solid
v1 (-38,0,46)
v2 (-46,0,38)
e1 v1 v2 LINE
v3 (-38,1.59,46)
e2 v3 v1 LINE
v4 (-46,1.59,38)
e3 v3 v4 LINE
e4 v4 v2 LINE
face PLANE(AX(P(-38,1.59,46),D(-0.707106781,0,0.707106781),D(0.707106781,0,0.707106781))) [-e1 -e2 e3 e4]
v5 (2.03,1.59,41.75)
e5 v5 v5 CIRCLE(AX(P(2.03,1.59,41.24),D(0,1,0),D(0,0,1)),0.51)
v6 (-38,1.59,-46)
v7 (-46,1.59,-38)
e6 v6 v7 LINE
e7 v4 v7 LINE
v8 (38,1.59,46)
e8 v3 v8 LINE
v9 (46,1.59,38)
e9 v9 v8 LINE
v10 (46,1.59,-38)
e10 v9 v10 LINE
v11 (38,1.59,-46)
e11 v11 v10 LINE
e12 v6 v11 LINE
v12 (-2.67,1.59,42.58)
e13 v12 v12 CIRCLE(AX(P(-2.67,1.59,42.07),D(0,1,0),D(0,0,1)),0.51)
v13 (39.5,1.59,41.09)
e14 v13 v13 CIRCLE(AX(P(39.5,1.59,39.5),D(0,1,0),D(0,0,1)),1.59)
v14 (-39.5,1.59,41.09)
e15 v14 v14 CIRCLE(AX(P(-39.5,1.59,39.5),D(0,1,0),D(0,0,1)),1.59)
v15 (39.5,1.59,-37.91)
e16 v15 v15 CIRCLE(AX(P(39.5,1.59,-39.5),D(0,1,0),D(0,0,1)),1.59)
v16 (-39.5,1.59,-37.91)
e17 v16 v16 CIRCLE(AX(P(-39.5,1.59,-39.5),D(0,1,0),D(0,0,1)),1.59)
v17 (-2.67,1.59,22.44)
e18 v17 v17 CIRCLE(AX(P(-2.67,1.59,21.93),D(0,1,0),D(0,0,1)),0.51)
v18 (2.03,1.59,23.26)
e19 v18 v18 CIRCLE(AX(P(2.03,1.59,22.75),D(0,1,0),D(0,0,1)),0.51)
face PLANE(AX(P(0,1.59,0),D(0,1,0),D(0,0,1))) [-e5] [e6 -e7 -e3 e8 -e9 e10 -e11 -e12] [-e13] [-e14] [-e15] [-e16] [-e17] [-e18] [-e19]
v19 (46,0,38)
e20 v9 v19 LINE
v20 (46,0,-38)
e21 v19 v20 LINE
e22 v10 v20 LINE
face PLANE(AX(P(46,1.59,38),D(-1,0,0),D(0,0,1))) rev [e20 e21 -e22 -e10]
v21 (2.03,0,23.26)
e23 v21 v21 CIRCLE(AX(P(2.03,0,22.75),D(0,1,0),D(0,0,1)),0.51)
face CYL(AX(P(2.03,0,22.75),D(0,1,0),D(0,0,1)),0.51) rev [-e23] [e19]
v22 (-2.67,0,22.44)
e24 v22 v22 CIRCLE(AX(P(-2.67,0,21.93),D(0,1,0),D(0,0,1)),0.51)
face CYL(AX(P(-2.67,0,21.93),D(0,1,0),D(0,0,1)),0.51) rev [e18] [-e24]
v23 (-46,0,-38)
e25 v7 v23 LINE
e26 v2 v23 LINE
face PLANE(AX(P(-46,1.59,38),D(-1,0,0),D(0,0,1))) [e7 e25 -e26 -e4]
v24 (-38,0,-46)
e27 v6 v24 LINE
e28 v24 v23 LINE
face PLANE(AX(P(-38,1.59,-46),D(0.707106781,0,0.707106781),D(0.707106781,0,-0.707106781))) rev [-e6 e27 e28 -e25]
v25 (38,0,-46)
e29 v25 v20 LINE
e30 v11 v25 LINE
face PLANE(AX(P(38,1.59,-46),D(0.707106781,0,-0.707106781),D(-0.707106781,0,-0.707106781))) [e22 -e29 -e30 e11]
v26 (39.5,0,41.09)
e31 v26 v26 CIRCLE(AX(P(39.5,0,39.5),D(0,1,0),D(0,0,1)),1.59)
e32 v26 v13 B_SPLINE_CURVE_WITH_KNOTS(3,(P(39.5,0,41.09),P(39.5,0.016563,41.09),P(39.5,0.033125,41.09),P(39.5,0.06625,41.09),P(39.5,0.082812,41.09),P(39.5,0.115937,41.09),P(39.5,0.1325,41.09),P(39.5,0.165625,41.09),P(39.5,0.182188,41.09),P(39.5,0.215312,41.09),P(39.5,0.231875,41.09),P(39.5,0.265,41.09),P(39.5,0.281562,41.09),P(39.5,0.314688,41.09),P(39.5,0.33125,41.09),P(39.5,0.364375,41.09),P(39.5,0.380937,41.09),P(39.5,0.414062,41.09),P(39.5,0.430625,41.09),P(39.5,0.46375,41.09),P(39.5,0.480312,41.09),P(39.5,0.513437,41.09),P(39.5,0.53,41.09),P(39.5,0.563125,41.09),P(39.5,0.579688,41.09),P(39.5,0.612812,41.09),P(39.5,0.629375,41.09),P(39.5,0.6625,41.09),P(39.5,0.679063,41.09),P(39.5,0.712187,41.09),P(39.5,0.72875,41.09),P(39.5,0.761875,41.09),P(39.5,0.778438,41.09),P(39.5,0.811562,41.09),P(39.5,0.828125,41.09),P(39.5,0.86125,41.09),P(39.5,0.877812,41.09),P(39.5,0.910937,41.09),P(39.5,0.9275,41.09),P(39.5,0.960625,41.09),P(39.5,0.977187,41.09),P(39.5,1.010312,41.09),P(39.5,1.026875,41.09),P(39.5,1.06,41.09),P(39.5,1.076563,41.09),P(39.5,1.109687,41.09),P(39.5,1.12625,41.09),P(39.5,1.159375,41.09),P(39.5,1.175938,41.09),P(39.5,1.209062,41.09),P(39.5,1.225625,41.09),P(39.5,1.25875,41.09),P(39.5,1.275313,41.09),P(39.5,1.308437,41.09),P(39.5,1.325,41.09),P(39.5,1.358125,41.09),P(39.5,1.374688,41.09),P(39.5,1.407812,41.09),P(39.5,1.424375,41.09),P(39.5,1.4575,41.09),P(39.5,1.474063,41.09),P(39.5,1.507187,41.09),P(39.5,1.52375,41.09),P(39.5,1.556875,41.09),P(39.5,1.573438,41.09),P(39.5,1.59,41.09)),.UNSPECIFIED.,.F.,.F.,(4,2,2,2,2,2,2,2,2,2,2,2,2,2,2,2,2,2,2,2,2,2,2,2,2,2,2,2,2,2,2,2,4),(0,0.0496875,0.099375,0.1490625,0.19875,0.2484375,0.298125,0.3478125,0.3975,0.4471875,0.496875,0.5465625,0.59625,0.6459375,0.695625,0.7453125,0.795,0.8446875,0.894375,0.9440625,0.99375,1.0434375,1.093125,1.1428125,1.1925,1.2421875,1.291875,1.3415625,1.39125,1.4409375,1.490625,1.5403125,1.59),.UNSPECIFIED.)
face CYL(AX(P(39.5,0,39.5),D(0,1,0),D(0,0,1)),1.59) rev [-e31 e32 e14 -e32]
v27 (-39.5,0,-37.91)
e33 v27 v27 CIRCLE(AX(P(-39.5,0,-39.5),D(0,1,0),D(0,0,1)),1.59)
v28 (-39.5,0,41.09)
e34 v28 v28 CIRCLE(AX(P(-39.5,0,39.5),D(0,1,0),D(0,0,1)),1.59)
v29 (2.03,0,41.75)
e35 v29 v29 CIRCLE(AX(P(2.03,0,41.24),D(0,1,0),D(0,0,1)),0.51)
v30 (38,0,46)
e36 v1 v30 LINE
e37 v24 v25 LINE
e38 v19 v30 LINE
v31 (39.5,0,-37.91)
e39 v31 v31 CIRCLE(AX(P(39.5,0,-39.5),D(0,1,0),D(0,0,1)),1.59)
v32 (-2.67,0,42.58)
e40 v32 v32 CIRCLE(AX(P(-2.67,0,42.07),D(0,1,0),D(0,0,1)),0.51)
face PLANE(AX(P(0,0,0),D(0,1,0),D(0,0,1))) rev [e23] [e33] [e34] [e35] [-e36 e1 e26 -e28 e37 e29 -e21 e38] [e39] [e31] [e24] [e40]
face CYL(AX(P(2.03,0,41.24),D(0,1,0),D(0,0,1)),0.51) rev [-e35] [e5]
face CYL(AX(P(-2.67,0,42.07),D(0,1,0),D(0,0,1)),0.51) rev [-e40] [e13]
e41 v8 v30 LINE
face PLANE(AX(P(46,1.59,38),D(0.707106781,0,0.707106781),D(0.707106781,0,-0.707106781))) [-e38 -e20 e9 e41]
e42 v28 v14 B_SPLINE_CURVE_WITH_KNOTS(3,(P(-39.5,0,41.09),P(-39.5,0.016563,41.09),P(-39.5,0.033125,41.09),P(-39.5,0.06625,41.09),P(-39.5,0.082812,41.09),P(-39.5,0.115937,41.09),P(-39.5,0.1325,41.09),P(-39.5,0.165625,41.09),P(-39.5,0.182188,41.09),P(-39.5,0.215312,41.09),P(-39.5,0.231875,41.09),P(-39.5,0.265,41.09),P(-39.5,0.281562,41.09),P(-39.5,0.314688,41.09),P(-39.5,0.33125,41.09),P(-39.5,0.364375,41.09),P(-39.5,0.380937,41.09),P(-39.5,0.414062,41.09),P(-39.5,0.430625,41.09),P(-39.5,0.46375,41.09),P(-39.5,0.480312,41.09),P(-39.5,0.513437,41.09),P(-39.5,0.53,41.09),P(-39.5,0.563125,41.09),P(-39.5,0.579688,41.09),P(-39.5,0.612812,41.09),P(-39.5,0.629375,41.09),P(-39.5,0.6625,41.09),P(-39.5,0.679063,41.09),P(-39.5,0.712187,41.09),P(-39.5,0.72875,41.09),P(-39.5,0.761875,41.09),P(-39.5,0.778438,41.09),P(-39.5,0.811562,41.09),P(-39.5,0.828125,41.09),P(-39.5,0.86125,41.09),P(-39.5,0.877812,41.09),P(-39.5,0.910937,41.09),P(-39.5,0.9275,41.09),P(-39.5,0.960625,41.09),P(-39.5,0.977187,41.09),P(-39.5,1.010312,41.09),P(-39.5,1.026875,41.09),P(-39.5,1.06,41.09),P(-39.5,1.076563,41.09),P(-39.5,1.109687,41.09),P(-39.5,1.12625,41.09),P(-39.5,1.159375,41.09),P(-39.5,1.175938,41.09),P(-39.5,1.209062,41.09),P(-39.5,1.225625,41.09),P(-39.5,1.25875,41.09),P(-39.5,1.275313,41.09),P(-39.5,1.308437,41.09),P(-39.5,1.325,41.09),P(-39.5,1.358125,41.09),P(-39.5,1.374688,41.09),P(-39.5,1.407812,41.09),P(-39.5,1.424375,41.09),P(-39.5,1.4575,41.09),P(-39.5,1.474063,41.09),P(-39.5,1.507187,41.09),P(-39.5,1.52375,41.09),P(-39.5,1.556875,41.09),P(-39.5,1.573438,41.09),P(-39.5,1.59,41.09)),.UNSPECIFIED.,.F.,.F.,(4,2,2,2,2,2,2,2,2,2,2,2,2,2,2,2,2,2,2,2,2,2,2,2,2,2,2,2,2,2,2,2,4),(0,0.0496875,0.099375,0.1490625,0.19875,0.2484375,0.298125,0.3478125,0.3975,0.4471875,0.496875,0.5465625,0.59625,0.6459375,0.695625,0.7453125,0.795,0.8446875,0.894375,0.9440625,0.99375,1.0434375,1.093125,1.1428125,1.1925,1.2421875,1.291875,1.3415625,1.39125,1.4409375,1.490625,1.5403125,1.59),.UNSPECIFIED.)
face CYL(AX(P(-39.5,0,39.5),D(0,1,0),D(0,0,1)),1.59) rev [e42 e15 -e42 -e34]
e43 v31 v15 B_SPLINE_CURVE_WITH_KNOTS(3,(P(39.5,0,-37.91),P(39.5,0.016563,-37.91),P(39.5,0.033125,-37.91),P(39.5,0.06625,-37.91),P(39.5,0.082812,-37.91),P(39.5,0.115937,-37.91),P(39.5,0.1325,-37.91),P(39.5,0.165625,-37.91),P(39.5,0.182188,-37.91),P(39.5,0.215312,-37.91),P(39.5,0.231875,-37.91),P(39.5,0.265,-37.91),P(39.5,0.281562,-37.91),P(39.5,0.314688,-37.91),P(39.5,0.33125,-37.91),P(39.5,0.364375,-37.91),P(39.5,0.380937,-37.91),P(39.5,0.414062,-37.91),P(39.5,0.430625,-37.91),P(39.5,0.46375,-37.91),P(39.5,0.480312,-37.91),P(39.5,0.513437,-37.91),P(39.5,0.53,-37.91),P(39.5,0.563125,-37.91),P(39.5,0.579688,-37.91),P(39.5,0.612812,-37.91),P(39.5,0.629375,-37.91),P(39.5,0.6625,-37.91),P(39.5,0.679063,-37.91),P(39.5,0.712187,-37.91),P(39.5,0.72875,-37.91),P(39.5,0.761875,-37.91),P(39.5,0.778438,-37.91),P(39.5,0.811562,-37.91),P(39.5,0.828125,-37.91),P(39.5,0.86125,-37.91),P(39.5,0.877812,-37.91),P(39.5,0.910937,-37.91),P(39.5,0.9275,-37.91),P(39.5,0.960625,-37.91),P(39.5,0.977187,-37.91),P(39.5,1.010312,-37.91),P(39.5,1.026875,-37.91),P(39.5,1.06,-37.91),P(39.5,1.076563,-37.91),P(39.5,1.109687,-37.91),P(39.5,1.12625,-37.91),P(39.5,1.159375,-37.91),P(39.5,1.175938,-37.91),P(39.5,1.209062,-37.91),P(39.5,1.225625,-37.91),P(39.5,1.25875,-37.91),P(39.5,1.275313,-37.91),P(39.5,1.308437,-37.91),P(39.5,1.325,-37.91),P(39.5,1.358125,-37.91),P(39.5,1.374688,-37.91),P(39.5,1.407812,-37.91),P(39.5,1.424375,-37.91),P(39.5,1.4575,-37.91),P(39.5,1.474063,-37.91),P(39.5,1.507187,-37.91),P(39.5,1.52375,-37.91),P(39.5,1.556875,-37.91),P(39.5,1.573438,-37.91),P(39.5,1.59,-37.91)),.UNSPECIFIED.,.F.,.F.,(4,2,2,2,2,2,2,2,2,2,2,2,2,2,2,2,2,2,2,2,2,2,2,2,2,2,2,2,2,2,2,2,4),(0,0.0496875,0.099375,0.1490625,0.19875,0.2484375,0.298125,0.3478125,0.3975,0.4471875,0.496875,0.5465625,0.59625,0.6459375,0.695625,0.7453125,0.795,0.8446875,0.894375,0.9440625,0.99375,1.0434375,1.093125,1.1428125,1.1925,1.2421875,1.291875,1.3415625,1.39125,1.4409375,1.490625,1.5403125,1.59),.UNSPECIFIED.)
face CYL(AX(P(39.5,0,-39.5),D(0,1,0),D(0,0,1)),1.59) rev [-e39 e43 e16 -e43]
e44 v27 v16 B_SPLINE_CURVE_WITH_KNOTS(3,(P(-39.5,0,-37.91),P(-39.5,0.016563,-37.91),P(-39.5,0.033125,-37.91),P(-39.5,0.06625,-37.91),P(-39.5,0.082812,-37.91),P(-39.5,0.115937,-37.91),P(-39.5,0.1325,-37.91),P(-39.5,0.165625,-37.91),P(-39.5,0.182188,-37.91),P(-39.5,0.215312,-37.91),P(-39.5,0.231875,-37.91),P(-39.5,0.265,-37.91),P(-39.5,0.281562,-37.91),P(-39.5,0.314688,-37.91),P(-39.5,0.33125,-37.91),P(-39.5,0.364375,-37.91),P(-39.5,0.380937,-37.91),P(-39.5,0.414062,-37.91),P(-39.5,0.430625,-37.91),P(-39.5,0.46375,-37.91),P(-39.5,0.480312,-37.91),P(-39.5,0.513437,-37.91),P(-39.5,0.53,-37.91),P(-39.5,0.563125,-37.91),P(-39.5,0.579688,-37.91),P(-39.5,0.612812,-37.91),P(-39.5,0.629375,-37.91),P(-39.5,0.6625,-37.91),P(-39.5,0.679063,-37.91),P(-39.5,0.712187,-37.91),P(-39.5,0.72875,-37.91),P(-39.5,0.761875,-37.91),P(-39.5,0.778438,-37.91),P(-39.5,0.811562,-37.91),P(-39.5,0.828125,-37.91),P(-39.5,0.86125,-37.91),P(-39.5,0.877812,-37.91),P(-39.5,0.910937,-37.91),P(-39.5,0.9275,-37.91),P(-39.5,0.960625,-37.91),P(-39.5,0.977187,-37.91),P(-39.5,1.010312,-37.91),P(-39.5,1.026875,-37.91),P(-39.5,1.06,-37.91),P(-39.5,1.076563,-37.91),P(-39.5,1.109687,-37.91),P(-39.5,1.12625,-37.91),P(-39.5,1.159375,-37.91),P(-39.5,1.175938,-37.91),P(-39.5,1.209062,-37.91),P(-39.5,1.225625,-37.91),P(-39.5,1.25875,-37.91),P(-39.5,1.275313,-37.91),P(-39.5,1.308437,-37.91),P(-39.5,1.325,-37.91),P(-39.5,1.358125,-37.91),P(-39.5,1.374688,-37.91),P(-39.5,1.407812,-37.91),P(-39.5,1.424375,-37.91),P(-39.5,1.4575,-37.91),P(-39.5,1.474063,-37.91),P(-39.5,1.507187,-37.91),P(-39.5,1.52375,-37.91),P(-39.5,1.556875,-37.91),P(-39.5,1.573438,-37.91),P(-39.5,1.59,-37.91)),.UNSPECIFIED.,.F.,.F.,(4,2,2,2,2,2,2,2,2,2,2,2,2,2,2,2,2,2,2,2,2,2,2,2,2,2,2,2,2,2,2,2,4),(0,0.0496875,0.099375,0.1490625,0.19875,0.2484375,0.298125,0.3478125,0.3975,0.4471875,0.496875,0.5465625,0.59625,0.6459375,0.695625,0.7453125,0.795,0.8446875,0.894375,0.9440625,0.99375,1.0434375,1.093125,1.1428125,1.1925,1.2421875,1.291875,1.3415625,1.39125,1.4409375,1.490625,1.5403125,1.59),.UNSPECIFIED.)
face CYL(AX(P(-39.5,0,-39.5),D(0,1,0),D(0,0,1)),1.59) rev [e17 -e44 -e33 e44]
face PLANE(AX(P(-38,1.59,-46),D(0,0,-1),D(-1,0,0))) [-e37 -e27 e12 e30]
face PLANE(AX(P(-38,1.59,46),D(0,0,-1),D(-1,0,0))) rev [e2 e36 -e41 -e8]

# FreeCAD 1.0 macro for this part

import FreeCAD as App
import Part
import Sketcher
from FreeCAD import Vector
Q = App.Units.Quantity


def add_polygon(sketch, points):
    """Adds a closed chain of lines whose ends are joined by coincident constraints."""
    first, n = sketch.GeometryCount, len(points)
    for a, b in zip(points, points[1:] + points[:1]):
        sketch.addGeometry(Part.LineSegment(App.Vector(*a, 0), App.Vector(*b, 0)), False)
    for i in range(n):
        sketch.addConstraint(Sketcher.Constraint("Coincident", first + i, 2, first + (i + 1) % n, 1))

doc = App.newDocument("Part")
params = doc.addObject("Spreadsheet::Sheet", "Params")
for row, (alias, value) in enumerate([
    ("sketch1_width", "76 mm"),
    ("pad1_length", "1.59 mm"),
    ("sketch2_diameter", "3.18 mm"),
    ("sketch2_diameter2", "1.02 mm"),
], start=1):
    params.set(f"A{row}", alias)
    params.set(f"B{row}", "=" + value)
    params.setAlias(f"B{row}", alias)

body = doc.addObject("PartDesign::Body", "Body")

sketch1 = body.newObject("Sketcher::SketchObject", "Sketch")
sketch1.AttachmentSupport = (doc.getObject("XZ_Plane"), [""])
sketch1.MapMode = "FlatFace"
add_polygon(sketch1, [(-38, -46), (-46, -38), (-46, 38), (-38, 46), (38, 46), (46, 38), (46, -38), (38, -46)])
sketch1.addConstraint(Sketcher.Constraint("Vertical", 1))
sketch1.addConstraint(Sketcher.Constraint("Horizontal", 3))
sketch1.addConstraint(Sketcher.Constraint("Vertical", 5))
sketch1.addConstraint(Sketcher.Constraint("Horizontal", 7))
sketch1.addConstraint(Sketcher.Constraint("Symmetric", 0, 2, 4, 2, -1, 1))
sketch1.addConstraint(Sketcher.Constraint("Symmetric", 2, 2, 6, 2, -1, 1))
sketch1.addConstraint(Sketcher.Constraint("Perpendicular", 0, 2))
sketch1.addConstraint(Sketcher.Constraint("Perpendicular", 2, 4))
sketch1.addConstraint(Sketcher.Constraint("Perpendicular", 4, 6))
sketch1.addConstraint(Sketcher.Constraint("Horizontal", 1, 2, 4, 2))
sketch1.addConstraint(Sketcher.Constraint("Vertical", 3, 2, 6, 2))
sketch1.addConstraint(Sketcher.Constraint("Equal", 7, 1))
sketch1.addConstraint(Sketcher.Constraint("DistanceX", 3, 1, 3, 2, Q("76 mm")))
sketch1.addConstraint(Sketcher.Constraint("DistanceX", 0, 2, -1, 1, Q("46 mm")))
sketch1.setExpression("Constraints[20]", "Params.sketch1_width")
pad1 = body.newObject("PartDesign::Pad", "Pad")
pad1.Profile = sketch1
pad1.setExpression("Length", "Params.pad1_length")
pad1.Reversed = True

sketch2 = body.newObject("Sketcher::SketchObject", "Sketch001")
sketch2.AttachmentSupport = (doc.getObject("XZ_Plane"), [""])
sketch2.MapMode = "FlatFace"
sketch2.AttachmentOffset = App.Placement(Vector(0, 0, -1.59), App.Rotation())
sketch2.addGeometry(Part.Circle(Vector(-39.5, -39.5, 0), Vector(0, 0, 1), 1.59), False)
sketch2.addGeometry(Part.Circle(Vector(39.5, -39.5, 0), Vector(0, 0, 1), 1.59), False)
sketch2.addGeometry(Part.Circle(Vector(39.5, 39.5, 0), Vector(0, 0, 1), 1.59), False)
sketch2.addGeometry(Part.Circle(Vector(-39.5, 39.5, 0), Vector(0, 0, 1), 1.59), False)
sketch2.addGeometry(Part.Circle(Vector(-2.67, 21.93, 0), Vector(0, 0, 1), 0.51), False)
sketch2.addGeometry(Part.Circle(Vector(2.03, 22.75, 0), Vector(0, 0, 1), 0.51), False)
sketch2.addGeometry(Part.Circle(Vector(-2.67, 42.07, 0), Vector(0, 0, 1), 0.51), False)
sketch2.addGeometry(Part.Circle(Vector(2.03, 41.24, 0), Vector(0, 0, 1), 0.51), False)
sketch2.addConstraint(Sketcher.Constraint("Equal", 0, 1))
sketch2.addConstraint(Sketcher.Constraint("Equal", 1, 2))
sketch2.addConstraint(Sketcher.Constraint("Equal", 2, 3))
sketch2.addConstraint(Sketcher.Constraint("Equal", 4, 5))
sketch2.addConstraint(Sketcher.Constraint("Equal", 5, 6))
sketch2.addConstraint(Sketcher.Constraint("Equal", 6, 7))
sketch2.addConstraint(Sketcher.Constraint("Symmetric", 0, 3, 2, 3, -1, 1))
sketch2.addConstraint(Sketcher.Constraint("Symmetric", 1, 3, 3, 3, -1, 1))
sketch2.addConstraint(Sketcher.Constraint("Symmetric", 0, 3, 1, 3, -2))
sketch2.addConstraint(Sketcher.Constraint("Vertical", 4, 3, 6, 3))
sketch2.addConstraint(Sketcher.Constraint("Vertical", 5, 3, 7, 3))
sketch2.addConstraint(Sketcher.Constraint("Diameter", 0, Q("3.18 mm")))
sketch2.addConstraint(Sketcher.Constraint("Diameter", 4, Q("1.02 mm")))
sketch2.addConstraint(Sketcher.Constraint("DistanceX", 0, 3, 1, 3, Q("79 mm")))
sketch2.addConstraint(Sketcher.Constraint("DistanceY", 1, 3, 2, 3, Q("79 mm")))
sketch2.addConstraint(Sketcher.Constraint("DistanceX", 4, 3, 5, 3, Q("4.7 mm")))
sketch2.addConstraint(Sketcher.Constraint("DistanceX", 4, 3, -1, 1, Q("2.67 mm")))
sketch2.addConstraint(Sketcher.Constraint("DistanceY", -1, 1, 4, 3, Q("21.93 mm")))
sketch2.addConstraint(Sketcher.Constraint("DistanceY", -1, 1, 5, 3, Q("22.75 mm")))
sketch2.addConstraint(Sketcher.Constraint("DistanceY", -1, 1, 6, 3, Q("42.07 mm")))
sketch2.addConstraint(Sketcher.Constraint("DistanceY", -1, 1, 7, 3, Q("41.24 mm")))
sketch2.setExpression("Constraints[11]", "Params.sketch2_diameter")
sketch2.setExpression("Constraints[12]", "Params.sketch2_diameter2")
pocket1 = body.newObject("PartDesign::Pocket", "Pocket")
pocket1.Profile = sketch2
pocket1.Type = "ThroughAll"
pocket1.Reversed = True

doc.recompute()
